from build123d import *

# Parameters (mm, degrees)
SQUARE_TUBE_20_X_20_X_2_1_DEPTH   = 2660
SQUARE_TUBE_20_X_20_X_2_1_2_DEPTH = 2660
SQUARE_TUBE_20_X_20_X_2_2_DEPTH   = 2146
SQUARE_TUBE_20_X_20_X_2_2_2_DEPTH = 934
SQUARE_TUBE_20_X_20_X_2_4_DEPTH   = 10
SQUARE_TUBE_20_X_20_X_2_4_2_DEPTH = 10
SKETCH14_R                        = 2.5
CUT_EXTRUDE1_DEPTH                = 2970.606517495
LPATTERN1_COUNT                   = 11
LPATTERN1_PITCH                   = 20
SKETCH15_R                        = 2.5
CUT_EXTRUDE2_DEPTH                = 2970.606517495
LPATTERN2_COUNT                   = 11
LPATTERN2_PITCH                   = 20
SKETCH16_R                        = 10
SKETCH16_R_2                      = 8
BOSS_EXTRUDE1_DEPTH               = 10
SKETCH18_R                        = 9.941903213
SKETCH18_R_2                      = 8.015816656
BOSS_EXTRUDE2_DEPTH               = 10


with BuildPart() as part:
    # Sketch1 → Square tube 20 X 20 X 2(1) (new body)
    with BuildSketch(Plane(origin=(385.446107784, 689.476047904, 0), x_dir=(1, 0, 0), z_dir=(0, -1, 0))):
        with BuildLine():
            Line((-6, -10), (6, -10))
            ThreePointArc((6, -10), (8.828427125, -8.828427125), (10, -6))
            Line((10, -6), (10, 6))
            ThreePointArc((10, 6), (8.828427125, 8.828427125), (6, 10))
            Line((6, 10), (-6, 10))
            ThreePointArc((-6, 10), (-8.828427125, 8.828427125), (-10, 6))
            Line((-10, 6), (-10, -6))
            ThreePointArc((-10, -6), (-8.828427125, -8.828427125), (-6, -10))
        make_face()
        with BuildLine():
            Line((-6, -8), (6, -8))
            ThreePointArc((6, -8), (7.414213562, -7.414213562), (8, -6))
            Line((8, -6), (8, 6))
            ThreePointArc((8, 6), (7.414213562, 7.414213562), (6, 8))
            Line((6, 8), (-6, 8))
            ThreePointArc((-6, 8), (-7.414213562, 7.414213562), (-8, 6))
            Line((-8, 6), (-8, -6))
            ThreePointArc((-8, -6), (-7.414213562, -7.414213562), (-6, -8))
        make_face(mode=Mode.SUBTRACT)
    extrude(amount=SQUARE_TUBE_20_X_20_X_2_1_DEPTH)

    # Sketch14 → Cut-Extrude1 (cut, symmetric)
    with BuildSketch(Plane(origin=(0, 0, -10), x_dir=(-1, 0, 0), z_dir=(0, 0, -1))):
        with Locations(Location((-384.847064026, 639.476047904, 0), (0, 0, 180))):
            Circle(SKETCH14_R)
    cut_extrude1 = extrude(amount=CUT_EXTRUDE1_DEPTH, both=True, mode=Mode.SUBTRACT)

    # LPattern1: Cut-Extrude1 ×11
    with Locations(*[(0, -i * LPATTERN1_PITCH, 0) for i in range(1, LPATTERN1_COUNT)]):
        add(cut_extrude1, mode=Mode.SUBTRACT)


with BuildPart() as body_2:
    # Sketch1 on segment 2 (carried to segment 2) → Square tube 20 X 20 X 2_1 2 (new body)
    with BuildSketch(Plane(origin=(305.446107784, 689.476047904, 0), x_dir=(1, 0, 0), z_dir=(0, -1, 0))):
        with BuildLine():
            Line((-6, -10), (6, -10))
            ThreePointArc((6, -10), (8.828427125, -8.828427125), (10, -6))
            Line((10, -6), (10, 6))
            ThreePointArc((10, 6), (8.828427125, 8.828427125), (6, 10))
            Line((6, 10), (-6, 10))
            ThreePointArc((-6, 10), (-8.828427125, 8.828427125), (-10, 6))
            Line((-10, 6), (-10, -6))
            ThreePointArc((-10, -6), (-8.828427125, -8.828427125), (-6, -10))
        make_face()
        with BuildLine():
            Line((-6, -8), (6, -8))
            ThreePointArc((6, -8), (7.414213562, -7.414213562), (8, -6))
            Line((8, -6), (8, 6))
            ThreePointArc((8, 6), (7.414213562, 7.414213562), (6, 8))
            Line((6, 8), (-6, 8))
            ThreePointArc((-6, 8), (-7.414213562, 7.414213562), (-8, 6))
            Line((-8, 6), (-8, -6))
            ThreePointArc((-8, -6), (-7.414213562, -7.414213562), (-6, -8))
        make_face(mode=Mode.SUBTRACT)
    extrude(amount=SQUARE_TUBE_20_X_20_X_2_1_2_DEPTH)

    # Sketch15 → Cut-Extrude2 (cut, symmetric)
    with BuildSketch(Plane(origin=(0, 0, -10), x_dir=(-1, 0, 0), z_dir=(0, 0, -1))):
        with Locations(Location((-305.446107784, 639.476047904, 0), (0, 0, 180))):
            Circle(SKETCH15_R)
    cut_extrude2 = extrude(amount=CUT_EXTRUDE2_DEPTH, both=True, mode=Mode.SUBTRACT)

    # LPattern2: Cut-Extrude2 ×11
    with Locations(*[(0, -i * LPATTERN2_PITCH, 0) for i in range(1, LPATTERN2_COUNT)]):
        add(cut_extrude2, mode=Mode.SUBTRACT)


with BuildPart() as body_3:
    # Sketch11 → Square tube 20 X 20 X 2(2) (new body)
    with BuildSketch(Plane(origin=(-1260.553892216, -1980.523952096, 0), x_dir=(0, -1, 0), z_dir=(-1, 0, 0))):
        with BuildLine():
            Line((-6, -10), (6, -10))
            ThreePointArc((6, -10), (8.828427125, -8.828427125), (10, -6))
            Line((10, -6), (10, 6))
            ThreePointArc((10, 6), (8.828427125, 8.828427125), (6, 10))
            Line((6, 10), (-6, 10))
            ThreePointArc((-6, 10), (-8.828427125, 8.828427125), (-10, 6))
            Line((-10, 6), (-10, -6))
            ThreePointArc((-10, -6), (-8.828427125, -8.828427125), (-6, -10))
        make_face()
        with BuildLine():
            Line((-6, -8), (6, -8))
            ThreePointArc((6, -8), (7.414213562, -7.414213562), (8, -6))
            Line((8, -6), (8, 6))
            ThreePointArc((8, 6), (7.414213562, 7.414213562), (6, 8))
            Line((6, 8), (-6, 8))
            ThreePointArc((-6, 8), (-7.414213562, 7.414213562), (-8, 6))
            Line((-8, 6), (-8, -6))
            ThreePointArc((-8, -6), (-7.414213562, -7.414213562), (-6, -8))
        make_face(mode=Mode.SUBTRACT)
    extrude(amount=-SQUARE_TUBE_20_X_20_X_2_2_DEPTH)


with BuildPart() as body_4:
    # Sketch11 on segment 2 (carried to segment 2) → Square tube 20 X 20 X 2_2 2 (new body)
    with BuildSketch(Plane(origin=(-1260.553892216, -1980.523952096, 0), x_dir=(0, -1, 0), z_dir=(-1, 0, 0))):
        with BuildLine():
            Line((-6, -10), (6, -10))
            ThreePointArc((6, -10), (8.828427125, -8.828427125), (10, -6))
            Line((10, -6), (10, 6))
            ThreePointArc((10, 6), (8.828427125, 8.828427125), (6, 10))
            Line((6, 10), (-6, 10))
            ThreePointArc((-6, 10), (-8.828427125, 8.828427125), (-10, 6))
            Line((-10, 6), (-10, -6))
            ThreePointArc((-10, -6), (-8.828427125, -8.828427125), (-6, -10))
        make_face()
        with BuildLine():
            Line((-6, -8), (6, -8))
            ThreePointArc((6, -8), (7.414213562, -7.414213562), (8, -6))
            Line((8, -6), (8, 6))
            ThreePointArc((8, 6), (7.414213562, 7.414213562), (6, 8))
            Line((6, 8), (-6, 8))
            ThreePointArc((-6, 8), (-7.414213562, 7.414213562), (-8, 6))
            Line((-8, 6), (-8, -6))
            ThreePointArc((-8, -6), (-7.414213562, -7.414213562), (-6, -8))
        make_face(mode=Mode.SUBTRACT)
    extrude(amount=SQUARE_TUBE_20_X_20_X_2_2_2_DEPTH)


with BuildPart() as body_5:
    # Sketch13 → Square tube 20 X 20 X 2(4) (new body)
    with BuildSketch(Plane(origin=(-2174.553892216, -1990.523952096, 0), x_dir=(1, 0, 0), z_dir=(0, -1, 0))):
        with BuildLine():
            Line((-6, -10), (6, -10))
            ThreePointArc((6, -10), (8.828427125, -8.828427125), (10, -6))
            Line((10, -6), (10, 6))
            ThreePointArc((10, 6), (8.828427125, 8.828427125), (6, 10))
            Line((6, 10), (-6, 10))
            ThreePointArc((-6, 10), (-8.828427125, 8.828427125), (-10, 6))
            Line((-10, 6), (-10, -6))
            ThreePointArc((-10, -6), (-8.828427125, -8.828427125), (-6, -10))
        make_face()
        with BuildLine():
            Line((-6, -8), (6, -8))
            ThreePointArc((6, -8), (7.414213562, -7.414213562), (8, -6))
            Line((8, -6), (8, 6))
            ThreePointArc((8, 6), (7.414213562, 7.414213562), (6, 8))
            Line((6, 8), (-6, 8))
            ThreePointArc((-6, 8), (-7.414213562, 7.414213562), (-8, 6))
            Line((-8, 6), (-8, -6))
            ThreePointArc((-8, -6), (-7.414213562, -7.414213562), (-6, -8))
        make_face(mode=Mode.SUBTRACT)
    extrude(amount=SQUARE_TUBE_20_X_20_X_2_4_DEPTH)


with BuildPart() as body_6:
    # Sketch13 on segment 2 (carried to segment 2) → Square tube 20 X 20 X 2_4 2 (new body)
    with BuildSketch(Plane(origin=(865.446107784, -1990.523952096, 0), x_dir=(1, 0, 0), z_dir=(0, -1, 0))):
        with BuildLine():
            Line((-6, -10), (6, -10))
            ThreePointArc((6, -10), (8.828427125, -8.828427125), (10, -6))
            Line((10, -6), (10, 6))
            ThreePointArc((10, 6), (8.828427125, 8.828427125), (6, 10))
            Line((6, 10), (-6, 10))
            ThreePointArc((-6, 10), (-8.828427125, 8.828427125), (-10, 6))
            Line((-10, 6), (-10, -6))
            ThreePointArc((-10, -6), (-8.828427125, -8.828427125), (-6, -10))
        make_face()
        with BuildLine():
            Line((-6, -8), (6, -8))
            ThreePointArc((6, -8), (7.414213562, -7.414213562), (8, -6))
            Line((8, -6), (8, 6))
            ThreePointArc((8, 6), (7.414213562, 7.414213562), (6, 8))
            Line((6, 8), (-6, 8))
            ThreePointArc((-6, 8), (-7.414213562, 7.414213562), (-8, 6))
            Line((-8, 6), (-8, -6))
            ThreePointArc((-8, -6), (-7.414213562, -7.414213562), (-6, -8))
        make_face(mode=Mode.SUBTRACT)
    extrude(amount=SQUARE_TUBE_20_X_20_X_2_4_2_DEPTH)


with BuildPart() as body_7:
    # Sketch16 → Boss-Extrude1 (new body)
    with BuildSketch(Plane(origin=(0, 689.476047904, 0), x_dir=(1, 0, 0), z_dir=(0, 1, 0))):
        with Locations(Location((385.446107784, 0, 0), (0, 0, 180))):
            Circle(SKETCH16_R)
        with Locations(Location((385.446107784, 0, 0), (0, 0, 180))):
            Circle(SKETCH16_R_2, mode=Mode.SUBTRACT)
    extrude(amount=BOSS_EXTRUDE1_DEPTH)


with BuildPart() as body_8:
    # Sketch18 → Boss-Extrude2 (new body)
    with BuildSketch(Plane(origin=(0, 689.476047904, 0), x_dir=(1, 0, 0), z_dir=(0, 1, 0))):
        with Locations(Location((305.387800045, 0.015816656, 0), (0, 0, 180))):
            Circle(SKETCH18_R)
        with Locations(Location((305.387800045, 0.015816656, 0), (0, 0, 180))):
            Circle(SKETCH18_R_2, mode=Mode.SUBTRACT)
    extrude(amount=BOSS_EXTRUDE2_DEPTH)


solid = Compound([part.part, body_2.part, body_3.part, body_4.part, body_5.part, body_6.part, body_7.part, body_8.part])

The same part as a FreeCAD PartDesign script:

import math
import FreeCAD as App
import Part
import Sketcher

doc = App.newDocument("Part")
params = doc.addObject("Spreadsheet::Sheet", "Params")
for row, (alias, value) in enumerate([
    ("sketch1_radius", "4 mm"),
    ("sketch1_radius2", "2 mm"),
    ("sketch1_width", "12 mm"),
    ("pad1_length", "2660 mm"),
    ("sketch2_diameter", "5 mm"),
    ("pocket1_length", "5941.213035 mm"),
    ("linearpattern_pitch", "20 mm"),
    ("sketch3_radius", "4 mm"),
    ("sketch3_radius2", "2 mm"),
    ("sketch3_width", "12 mm"),
    ("pad2_length", "2660 mm"),
    ("sketch4_diameter", "5 mm"),
    ("pocket2_length", "5941.213035 mm"),
    ("linearpattern2_pitch", "20 mm"),
    ("sketch5_radius", "4 mm"),
    ("sketch5_radius2", "2 mm"),
    ("sketch5_width", "12 mm"),
    ("pad3_length", "2146 mm"),
    ("sketch6_radius", "4 mm"),
    ("sketch6_radius2", "2 mm"),
    ("sketch6_width", "12 mm"),
    ("pad4_length", "934 mm"),
    ("sketch7_radius", "4 mm"),
    ("sketch7_radius2", "2 mm"),
    ("sketch7_width", "12 mm"),
    ("pad5_length", "10 mm"),
    ("sketch8_radius", "4 mm"),
    ("sketch8_radius2", "2 mm"),
    ("sketch8_width", "12 mm"),
    ("pad6_length", "10 mm"),
    ("sketch9_diameter", "20 mm"),
    ("sketch9_diameter2", "16 mm"),
    ("pad7_length", "10 mm"),
    ("pad8_length", "10 mm"),
], start=1):
    params.set(f"A{row}", alias)
    params.set(f"B{row}", "=" + value)
    params.setAlias(f"B{row}", alias)

body = doc.addObject("PartDesign::Body", "Body")

sketch1 = body.newObject("Sketcher::SketchObject", "Sketch")
sketch1.AttachmentSupport = (doc.getObject("XZ_Plane"), [""])
sketch1.MapMode = "FlatFace"
sketch1.AttachmentOffset = App.Placement(App.Vector(0, 0, -689.476048), App.Rotation())
sketch1.addGeometry([
    Part.LineSegment(App.Vector(379.4, -10, 0), App.Vector(391.4, -10, 0)),
    Part.ArcOfCircle(Part.Circle(App.Vector(391.4, -6, 0), App.Vector(0, 0, 1), 4), math.radians(-90), math.radians(0)),
    Part.LineSegment(App.Vector(395.4, -6, 0), App.Vector(395.4, 6, 0)),
    Part.ArcOfCircle(Part.Circle(App.Vector(391.4, 6, 0), App.Vector(0, 0, 1), 4), math.radians(0), math.radians(90)),
    Part.LineSegment(App.Vector(391.4, 10, 0), App.Vector(379.4, 10, 0)),
    Part.ArcOfCircle(Part.Circle(App.Vector(379.4, 6, 0), App.Vector(0, 0, 1), 4), math.radians(90), math.radians(180)),
    Part.LineSegment(App.Vector(375.4, 6, 0), App.Vector(375.4, -6, 0)),
    Part.ArcOfCircle(Part.Circle(App.Vector(379.4, -6, 0), App.Vector(0, 0, 1), 4), math.radians(180), math.radians(270)),
    Part.LineSegment(App.Vector(391.4, -8, 0), App.Vector(379.4, -8, 0)),
    Part.ArcOfCircle(Part.Circle(App.Vector(379.4, -6, 0), App.Vector(0, 0, 1), 2), math.radians(-180), math.radians(-90)),
    Part.LineSegment(App.Vector(377.4, -6, 0), App.Vector(377.4, 6, 0)),
    Part.ArcOfCircle(Part.Circle(App.Vector(379.4, 6, 0), App.Vector(0, 0, 1), 2), math.radians(90), math.radians(180)),
    Part.LineSegment(App.Vector(379.4, 8, 0), App.Vector(391.4, 8, 0)),
    Part.ArcOfCircle(Part.Circle(App.Vector(391.4, 6, 0), App.Vector(0, 0, 1), 2), math.radians(0), math.radians(90)),
    Part.LineSegment(App.Vector(393.4, 6, 0), App.Vector(393.4, -6, 0)),
    Part.ArcOfCircle(Part.Circle(App.Vector(391.4, -6, 0), App.Vector(0, 0, 1), 2), math.radians(-90), math.radians(0)),
], False)
sketch1.addConstraint([
    Sketcher.Constraint("Tangent", 0, 2, 1, 1),
    Sketcher.Constraint("Tangent", 1, 2, 2, 1),
    Sketcher.Constraint("Tangent", 2, 2, 3, 1),
    Sketcher.Constraint("Tangent", 3, 2, 4, 1),
    Sketcher.Constraint("Tangent", 4, 2, 5, 1),
    Sketcher.Constraint("Tangent", 5, 2, 6, 1),
    Sketcher.Constraint("Tangent", 6, 2, 7, 1),
    Sketcher.Constraint("Tangent", 7, 2, 0, 1),
    Sketcher.Constraint("Tangent", 8, 2, 9, 2),
    Sketcher.Constraint("Tangent", 9, 1, 10, 1),
    Sketcher.Constraint("Tangent", 10, 2, 11, 2),
    Sketcher.Constraint("Tangent", 11, 1, 12, 1),
    Sketcher.Constraint("Tangent", 12, 2, 13, 2),
    Sketcher.Constraint("Tangent", 13, 1, 14, 1),
    Sketcher.Constraint("Tangent", 14, 2, 15, 2),
    Sketcher.Constraint("Tangent", 15, 1, 8, 1),
    Sketcher.Constraint("Horizontal", 0),
    Sketcher.Constraint("Vertical", 2),
    Sketcher.Constraint("Horizontal", 4),
    Sketcher.Constraint("Vertical", 6),
    Sketcher.Constraint("Horizontal", 8),
    Sketcher.Constraint("Vertical", 10),
    Sketcher.Constraint("Horizontal", 12),
    Sketcher.Constraint("Vertical", 14),
    Sketcher.Constraint("Coincident", 9, 3, 7, 3),
    Sketcher.Constraint("Coincident", 11, 3, 5, 3),
    Sketcher.Constraint("Coincident", 13, 3, 3, 3),
    Sketcher.Constraint("Equal", 1, 3),
    Sketcher.Constraint("Equal", 3, 5),
    Sketcher.Constraint("Equal", 5, 7),
    Sketcher.Constraint("Equal", 13, 15),
    Sketcher.Constraint("Equal", 12, 2),
    Sketcher.Constraint("Radius", 1, 4.0),
    Sketcher.Constraint("Radius", 9, 2.0),
    Sketcher.Constraint("DistanceX", 0, 1, 0, 2, 12.0),
    Sketcher.Constraint("DistanceY", 1, 3, -1, 1, 6.0),
    Sketcher.Constraint("DistanceX", -1, 1, 1, 3, 391.446108),
])
sketch1.setExpression("Constraints[32]", "Params.sketch1_radius")
sketch1.setExpression("Constraints[33]", "Params.sketch1_radius2")
sketch1.setExpression("Constraints[34]", "Params.sketch1_width")
pad1 = body.newObject("PartDesign::Pad", "Pad")
pad1.Profile = sketch1
pad1.setExpression("Length", "Params.pad1_length")

sketch2 = body.newObject("Sketcher::SketchObject", "Sketch001")
sketch2.AttachmentSupport = (doc.getObject("XY_Plane"), [""])
sketch2.MapMode = "FlatFace"
sketch2.AttachmentOffset = App.Placement(App.Vector(0, 0, -10), App.Rotation())
sketch2.addGeometry(Part.Circle(App.Vector(384.8, 639.5, 0), App.Vector(0, 0, 1), 2.5), False)
sketch2.addConstraint([
    Sketcher.Constraint("Diameter", 0, 5.0),
    Sketcher.Constraint("DistanceX", -1, 1, 0, 3, 384.847064),
    Sketcher.Constraint("DistanceY", -1, 1, 0, 3, 639.476048),
])
sketch2.setExpression("Constraints[0]", "Params.sketch2_diameter")
pocket1 = body.newObject("PartDesign::Pocket", "Pocket")
pocket1.Profile = sketch2
pocket1.setExpression("Length", "Params.pocket1_length")
pocket1.Midplane = True
doc.recompute()

linearpattern = body.newObject("PartDesign::LinearPattern", "LinearPattern")
linearpattern.Originals = [pocket1]
linearpattern.Direction = (doc.getObject("Y_Axis"), [""])
linearpattern.Mode = "offset"
linearpattern.setExpression("Offset", "Params.linearpattern_pitch")
linearpattern.Occurrences = 11
linearpattern.Reversed = True
body.Tip = linearpattern
body2 = doc.addObject("PartDesign::Body", "Body001")

sketch3 = body2.newObject("Sketcher::SketchObject", "Sketch002")
sketch3.AttachmentSupport = (doc.getObject("XZ_Plane001"), [""])
sketch3.MapMode = "FlatFace"
sketch3.AttachmentOffset = App.Placement(App.Vector(0, 0, -689.476048), App.Rotation())
sketch3.addGeometry([
    Part.LineSegment(App.Vector(299.4, -10, 0), App.Vector(311.4, -10, 0)),
    Part.ArcOfCircle(Part.Circle(App.Vector(311.4, -6, 0), App.Vector(0, 0, 1), 4), math.radians(-90), math.radians(0)),
    Part.LineSegment(App.Vector(315.4, -6, 0), App.Vector(315.4, 6, 0)),
    Part.ArcOfCircle(Part.Circle(App.Vector(311.4, 6, 0), App.Vector(0, 0, 1), 4), math.radians(0), math.radians(90)),
    Part.LineSegment(App.Vector(311.4, 10, 0), App.Vector(299.4, 10, 0)),
    Part.ArcOfCircle(Part.Circle(App.Vector(299.4, 6, 0), App.Vector(0, 0, 1), 4), math.radians(90), math.radians(180)),
    Part.LineSegment(App.Vector(295.4, 6, 0), App.Vector(295.4, -6, 0)),
    Part.ArcOfCircle(Part.Circle(App.Vector(299.4, -6, 0), App.Vector(0, 0, 1), 4), math.radians(180), math.radians(270)),
    Part.LineSegment(App.Vector(311.4, -8, 0), App.Vector(299.4, -8, 0)),
    Part.ArcOfCircle(Part.Circle(App.Vector(299.4, -6, 0), App.Vector(0, 0, 1), 2), math.radians(-180), math.radians(-90)),
    Part.LineSegment(App.Vector(297.4, -6, 0), App.Vector(297.4, 6, 0)),
    Part.ArcOfCircle(Part.Circle(App.Vector(299.4, 6, 0), App.Vector(0, 0, 1), 2), math.radians(90), math.radians(180)),
    Part.LineSegment(App.Vector(299.4, 8, 0), App.Vector(311.4, 8, 0)),
    Part.ArcOfCircle(Part.Circle(App.Vector(311.4, 6, 0), App.Vector(0, 0, 1), 2), math.radians(0), math.radians(90)),
    Part.LineSegment(App.Vector(313.4, 6, 0), App.Vector(313.4, -6, 0)),
    Part.ArcOfCircle(Part.Circle(App.Vector(311.4, -6, 0), App.Vector(0, 0, 1), 2), math.radians(-90), math.radians(0)),
], False)
sketch3.addConstraint([
    Sketcher.Constraint("Tangent", 0, 2, 1, 1),
    Sketcher.Constraint("Tangent", 1, 2, 2, 1),
    Sketcher.Constraint("Tangent", 2, 2, 3, 1),
    Sketcher.Constraint("Tangent", 3, 2, 4, 1),
    Sketcher.Constraint("Tangent", 4, 2, 5, 1),
    Sketcher.Constraint("Tangent", 5, 2, 6, 1),
    Sketcher.Constraint("Tangent", 6, 2, 7, 1),
    Sketcher.Constraint("Tangent", 7, 2, 0, 1),
    Sketcher.Constraint("Tangent", 8, 2, 9, 2),
    Sketcher.Constraint("Tangent", 9, 1, 10, 1),
    Sketcher.Constraint("Tangent", 10, 2, 11, 2),
    Sketcher.Constraint("Tangent", 11, 1, 12, 1),
    Sketcher.Constraint("Tangent", 12, 2, 13, 2),
    Sketcher.Constraint("Tangent", 13, 1, 14, 1),
    Sketcher.Constraint("Tangent", 14, 2, 15, 2),
    Sketcher.Constraint("Tangent", 15, 1, 8, 1),
    Sketcher.Constraint("Horizontal", 0),
    Sketcher.Constraint("Vertical", 2),
    Sketcher.Constraint("Horizontal", 4),
    Sketcher.Constraint("Vertical", 6),
    Sketcher.Constraint("Horizontal", 8),
    Sketcher.Constraint("Vertical", 10),
    Sketcher.Constraint("Horizontal", 12),
    Sketcher.Constraint("Vertical", 14),
    Sketcher.Constraint("Coincident", 9, 3, 7, 3),
    Sketcher.Constraint("Coincident", 11, 3, 5, 3),
    Sketcher.Constraint("Coincident", 13, 3, 3, 3),
    Sketcher.Constraint("Equal", 1, 3),
    Sketcher.Constraint("Equal", 3, 5),
    Sketcher.Constraint("Equal", 5, 7),
    Sketcher.Constraint("Equal", 13, 15),
    Sketcher.Constraint("Equal", 12, 2),
    Sketcher.Constraint("Radius", 1, 4.0),
    Sketcher.Constraint("Radius", 9, 2.0),
    Sketcher.Constraint("DistanceX", 0, 1, 0, 2, 12.0),
    Sketcher.Constraint("DistanceY", 1, 3, -1, 1, 6.0),
    Sketcher.Constraint("DistanceX", -1, 1, 1, 3, 311.446108),
])
sketch3.setExpression("Constraints[32]", "Params.sketch3_radius")
sketch3.setExpression("Constraints[33]", "Params.sketch3_radius2")
sketch3.setExpression("Constraints[34]", "Params.sketch3_width")
pad2 = body2.newObject("PartDesign::Pad", "Pad001")
pad2.Profile = sketch3
pad2.setExpression("Length", "Params.pad2_length")

sketch4 = body2.newObject("Sketcher::SketchObject", "Sketch003")
sketch4.AttachmentSupport = (doc.getObject("XY_Plane001"), [""])
sketch4.MapMode = "FlatFace"
sketch4.AttachmentOffset = App.Placement(App.Vector(0, 0, -10), App.Rotation())
sketch4.addGeometry(Part.Circle(App.Vector(305.4, 639.5, 0), App.Vector(0, 0, 1), 2.5), False)
sketch4.addConstraint([
    Sketcher.Constraint("Diameter", 0, 5.0),
    Sketcher.Constraint("DistanceX", -1, 1, 0, 3, 305.446108),
    Sketcher.Constraint("DistanceY", -1, 1, 0, 3, 639.476048),
])
sketch4.setExpression("Constraints[0]", "Params.sketch4_diameter")
pocket2 = body2.newObject("PartDesign::Pocket", "Pocket001")
pocket2.Profile = sketch4
pocket2.setExpression("Length", "Params.pocket2_length")
pocket2.Midplane = True
doc.recompute()

linearpattern2 = body2.newObject("PartDesign::LinearPattern", "LinearPattern001")
linearpattern2.Originals = [pocket2]
linearpattern2.Direction = (doc.getObject("Y_Axis001"), [""])
linearpattern2.Mode = "offset"
linearpattern2.setExpression("Offset", "Params.linearpattern2_pitch")
linearpattern2.Occurrences = 11
linearpattern2.Reversed = True
body2.Tip = linearpattern2
body3 = doc.addObject("PartDesign::Body", "Body002")

sketch5 = body3.newObject("Sketcher::SketchObject", "Sketch004")
sketch5.AttachmentSupport = (doc.getObject("YZ_Plane002"), [""])
sketch5.MapMode = "FlatFace"
sketch5.AttachmentOffset = App.Placement(App.Vector(0, 0, -1260.553892), App.Rotation())
sketch5.addGeometry([
    Part.LineSegment(App.Vector(-1974.5, -10, 0), App.Vector(-1986.5, -10, 0)),
    Part.ArcOfCircle(Part.Circle(App.Vector(-1986.5, -6, 0), App.Vector(0, 0, 1), 4), math.radians(180), math.radians(270)),
    Part.LineSegment(App.Vector(-1990.5, -6, 0), App.Vector(-1990.5, 6, 0)),
    Part.ArcOfCircle(Part.Circle(App.Vector(-1986.5, 6, 0), App.Vector(0, 0, 1), 4), math.radians(90), math.radians(180)),
    Part.LineSegment(App.Vector(-1986.5, 10, 0), App.Vector(-1974.5, 10, 0)),
    Part.ArcOfCircle(Part.Circle(App.Vector(-1974.5, 6, 0), App.Vector(0, 0, 1), 4), math.radians(0), math.radians(90)),
    Part.LineSegment(App.Vector(-1970.5, 6, 0), App.Vector(-1970.5, -6, 0)),
    Part.ArcOfCircle(Part.Circle(App.Vector(-1974.5, -6, 0), App.Vector(0, 0, 1), 4), math.radians(-90), math.radians(0)),
    Part.LineSegment(App.Vector(-1986.5, -8, 0), App.Vector(-1974.5, -8, 0)),
    Part.ArcOfCircle(Part.Circle(App.Vector(-1974.5, -6, 0), App.Vector(0, 0, 1), 2), math.radians(-90), math.radians(0)),
    Part.LineSegment(App.Vector(-1972.5, -6, 0), App.Vector(-1972.5, 6, 0)),
    Part.ArcOfCircle(Part.Circle(App.Vector(-1974.5, 6, 0), App.Vector(0, 0, 1), 2), math.radians(0), math.radians(90)),
    Part.LineSegment(App.Vector(-1974.5, 8, 0), App.Vector(-1986.5, 8, 0)),
    Part.ArcOfCircle(Part.Circle(App.Vector(-1986.5, 6, 0), App.Vector(0, 0, 1), 2), math.radians(90), math.radians(180)),
    Part.LineSegment(App.Vector(-1988.5, 6, 0), App.Vector(-1988.5, -6, 0)),
    Part.ArcOfCircle(Part.Circle(App.Vector(-1986.5, -6, 0), App.Vector(0, 0, 1), 2), math.radians(-180), math.radians(-90)),
], False)
sketch5.addConstraint([
    Sketcher.Constraint("Tangent", 0, 2, 1, 2),
    Sketcher.Constraint("Tangent", 1, 1, 2, 1),
    Sketcher.Constraint("Tangent", 2, 2, 3, 2),
    Sketcher.Constraint("Tangent", 3, 1, 4, 1),
    Sketcher.Constraint("Tangent", 4, 2, 5, 2),
    Sketcher.Constraint("Tangent", 5, 1, 6, 1),
    Sketcher.Constraint("Tangent", 6, 2, 7, 2),
    Sketcher.Constraint("Tangent", 7, 1, 0, 1),
    Sketcher.Constraint("Tangent", 8, 2, 9, 1),
    Sketcher.Constraint("Tangent", 9, 2, 10, 1),
    Sketcher.Constraint("Tangent", 10, 2, 11, 1),
    Sketcher.Constraint("Tangent", 11, 2, 12, 1),
    Sketcher.Constraint("Tangent", 12, 2, 13, 1),
    Sketcher.Constraint("Tangent", 13, 2, 14, 1),
    Sketcher.Constraint("Tangent", 14, 2, 15, 1),
    Sketcher.Constraint("Tangent", 15, 2, 8, 1),
    Sketcher.Constraint("Horizontal", 0),
    Sketcher.Constraint("Vertical", 2),
    Sketcher.Constraint("Horizontal", 4),
    Sketcher.Constraint("Vertical", 6),
    Sketcher.Constraint("Horizontal", 8),
    Sketcher.Constraint("Vertical", 10),
    Sketcher.Constraint("Horizontal", 12),
    Sketcher.Constraint("Vertical", 14),
    Sketcher.Constraint("Coincident", 9, 3, 7, 3),
    Sketcher.Constraint("Coincident", 11, 3, 5, 3),
    Sketcher.Constraint("Coincident", 13, 3, 3, 3),
    Sketcher.Constraint("Equal", 1, 3),
    Sketcher.Constraint("Equal", 3, 5),
    Sketcher.Constraint("Equal", 5, 7),
    Sketcher.Constraint("Equal", 13, 15),
    Sketcher.Constraint("Equal", 12, 2),
    Sketcher.Constraint("Radius", 1, 4.0),
    Sketcher.Constraint("Radius", 9, 2.0),
    Sketcher.Constraint("DistanceX", 0, 2, 0, 1, 12.0),
    Sketcher.Constraint("DistanceY", 1, 3, -1, 1, 6.0),
    Sketcher.Constraint("DistanceX", 1, 3, -1, 1, 1986.523952),
])
sketch5.setExpression("Constraints[32]", "Params.sketch5_radius")
sketch5.setExpression("Constraints[33]", "Params.sketch5_radius2")
sketch5.setExpression("Constraints[34]", "Params.sketch5_width")
pad3 = body3.newObject("PartDesign::Pad", "Pad002")
pad3.Profile = sketch5
pad3.setExpression("Length", "Params.pad3_length")
body4 = doc.addObject("PartDesign::Body", "Body003")

sketch6 = body4.newObject("Sketcher::SketchObject", "Sketch005")
sketch6.AttachmentSupport = (doc.getObject("YZ_Plane003"), [""])
sketch6.MapMode = "FlatFace"
sketch6.AttachmentOffset = App.Placement(App.Vector(0, 0, -1260.553892), App.Rotation())
sketch6.addGeometry([
    Part.LineSegment(App.Vector(-1974.5, -10, 0), App.Vector(-1986.5, -10, 0)),
    Part.ArcOfCircle(Part.Circle(App.Vector(-1986.5, -6, 0), App.Vector(0, 0, 1), 4), math.radians(180), math.radians(270)),
    Part.LineSegment(App.Vector(-1990.5, -6, 0), App.Vector(-1990.5, 6, 0)),
    Part.ArcOfCircle(Part.Circle(App.Vector(-1986.5, 6, 0), App.Vector(0, 0, 1), 4), math.radians(90), math.radians(180)),
    Part.LineSegment(App.Vector(-1986.5, 10, 0), App.Vector(-1974.5, 10, 0)),
    Part.ArcOfCircle(Part.Circle(App.Vector(-1974.5, 6, 0), App.Vector(0, 0, 1), 4), math.radians(0), math.radians(90)),
    Part.LineSegment(App.Vector(-1970.5, 6, 0), App.Vector(-1970.5, -6, 0)),
    Part.ArcOfCircle(Part.Circle(App.Vector(-1974.5, -6, 0), App.Vector(0, 0, 1), 4), math.radians(-90), math.radians(0)),
    Part.LineSegment(App.Vector(-1986.5, -8, 0), App.Vector(-1974.5, -8, 0)),
    Part.ArcOfCircle(Part.Circle(App.Vector(-1974.5, -6, 0), App.Vector(0, 0, 1), 2), math.radians(-90), math.radians(0)),
    Part.LineSegment(App.Vector(-1972.5, -6, 0), App.Vector(-1972.5, 6, 0)),
    Part.ArcOfCircle(Part.Circle(App.Vector(-1974.5, 6, 0), App.Vector(0, 0, 1), 2), math.radians(0), math.radians(90)),
    Part.LineSegment(App.Vector(-1974.5, 8, 0), App.Vector(-1986.5, 8, 0)),
    Part.ArcOfCircle(Part.Circle(App.Vector(-1986.5, 6, 0), App.Vector(0, 0, 1), 2), math.radians(90), math.radians(180)),
    Part.LineSegment(App.Vector(-1988.5, 6, 0), App.Vector(-1988.5, -6, 0)),
    Part.ArcOfCircle(Part.Circle(App.Vector(-1986.5, -6, 0), App.Vector(0, 0, 1), 2), math.radians(-180), math.radians(-90)),
], False)
sketch6.addConstraint([
    Sketcher.Constraint("Tangent", 0, 2, 1, 2),
    Sketcher.Constraint("Tangent", 1, 1, 2, 1),
    Sketcher.Constraint("Tangent", 2, 2, 3, 2),
    Sketcher.Constraint("Tangent", 3, 1, 4, 1),
    Sketcher.Constraint("Tangent", 4, 2, 5, 2),
    Sketcher.Constraint("Tangent", 5, 1, 6, 1),
    Sketcher.Constraint("Tangent", 6, 2, 7, 2),
    Sketcher.Constraint("Tangent", 7, 1, 0, 1),
    Sketcher.Constraint("Tangent", 8, 2, 9, 1),
    Sketcher.Constraint("Tangent", 9, 2, 10, 1),
    Sketcher.Constraint("Tangent", 10, 2, 11, 1),
    Sketcher.Constraint("Tangent", 11, 2, 12, 1),
    Sketcher.Constraint("Tangent", 12, 2, 13, 1),
    Sketcher.Constraint("Tangent", 13, 2, 14, 1),
    Sketcher.Constraint("Tangent", 14, 2, 15, 1),
    Sketcher.Constraint("Tangent", 15, 2, 8, 1),
    Sketcher.Constraint("Horizontal", 0),
    Sketcher.Constraint("Vertical", 2),
    Sketcher.Constraint("Horizontal", 4),
    Sketcher.Constraint("Vertical", 6),
    Sketcher.Constraint("Horizontal", 8),
    Sketcher.Constraint("Vertical", 10),
    Sketcher.Constraint("Horizontal", 12),
    Sketcher.Constraint("Vertical", 14),
    Sketcher.Constraint("Coincident", 9, 3, 7, 3),
    Sketcher.Constraint("Coincident", 11, 3, 5, 3),
    Sketcher.Constraint("Coincident", 13, 3, 3, 3),
    Sketcher.Constraint("Equal", 1, 3),
    Sketcher.Constraint("Equal", 3, 5),
    Sketcher.Constraint("Equal", 5, 7),
    Sketcher.Constraint("Equal", 13, 15),
    Sketcher.Constraint("Equal", 12, 2),
    Sketcher.Constraint("Radius", 1, 4.0),
    Sketcher.Constraint("Radius", 9, 2.0),
    Sketcher.Constraint("DistanceX", 0, 2, 0, 1, 12.0),
    Sketcher.Constraint("DistanceY", 1, 3, -1, 1, 6.0),
    Sketcher.Constraint("DistanceX", 1, 3, -1, 1, 1986.523952),
])
sketch6.setExpression("Constraints[32]", "Params.sketch6_radius")
sketch6.setExpression("Constraints[33]", "Params.sketch6_radius2")
sketch6.setExpression("Constraints[34]", "Params.sketch6_width")
pad4 = body4.newObject("PartDesign::Pad", "Pad003")
pad4.Profile = sketch6
pad4.setExpression("Length", "Params.pad4_length")
pad4.Reversed = True
body5 = doc.addObject("PartDesign::Body", "Body004")

sketch7 = body5.newObject("Sketcher::SketchObject", "Sketch006")
sketch7.AttachmentSupport = (doc.getObject("XZ_Plane004"), [""])
sketch7.MapMode = "FlatFace"
sketch7.AttachmentOffset = App.Placement(App.Vector(0, 0, 1990.523952), App.Rotation())
sketch7.addGeometry([
    Part.LineSegment(App.Vector(-2180.6, -10, 0), App.Vector(-2168.6, -10, 0)),
    Part.ArcOfCircle(Part.Circle(App.Vector(-2168.6, -6, 0), App.Vector(0, 0, 1), 4), math.radians(-90), math.radians(0)),
    Part.LineSegment(App.Vector(-2164.6, -6, 0), App.Vector(-2164.6, 6, 0)),
    Part.ArcOfCircle(Part.Circle(App.Vector(-2168.6, 6, 0), App.Vector(0, 0, 1), 4), math.radians(0), math.radians(90)),
    Part.LineSegment(App.Vector(-2168.6, 10, 0), App.Vector(-2180.6, 10, 0)),
    Part.ArcOfCircle(Part.Circle(App.Vector(-2180.6, 6, 0), App.Vector(0, 0, 1), 4), math.radians(90), math.radians(180)),
    Part.LineSegment(App.Vector(-2184.6, 6, 0), App.Vector(-2184.6, -6, 0)),
    Part.ArcOfCircle(Part.Circle(App.Vector(-2180.6, -6, 0), App.Vector(0, 0, 1), 4), math.radians(180), math.radians(270)),
    Part.LineSegment(App.Vector(-2168.6, -8, 0), App.Vector(-2180.6, -8, 0)),
    Part.ArcOfCircle(Part.Circle(App.Vector(-2180.6, -6, 0), App.Vector(0, 0, 1), 2), math.radians(-180), math.radians(-90)),
    Part.LineSegment(App.Vector(-2182.6, -6, 0), App.Vector(-2182.6, 6, 0)),
    Part.ArcOfCircle(Part.Circle(App.Vector(-2180.6, 6, 0), App.Vector(0, 0, 1), 2), math.radians(90), math.radians(180)),
    Part.LineSegment(App.Vector(-2180.6, 8, 0), App.Vector(-2168.6, 8, 0)),
    Part.ArcOfCircle(Part.Circle(App.Vector(-2168.6, 6, 0), App.Vector(0, 0, 1), 2), math.radians(0), math.radians(90)),
    Part.LineSegment(App.Vector(-2166.6, 6, 0), App.Vector(-2166.6, -6, 0)),
    Part.ArcOfCircle(Part.Circle(App.Vector(-2168.6, -6, 0), App.Vector(0, 0, 1), 2), math.radians(-90), math.radians(0)),
], False)
sketch7.addConstraint([
    Sketcher.Constraint("Tangent", 0, 2, 1, 1),
    Sketcher.Constraint("Tangent", 1, 2, 2, 1),
    Sketcher.Constraint("Tangent", 2, 2, 3, 1),
    Sketcher.Constraint("Tangent", 3, 2, 4, 1),
    Sketcher.Constraint("Tangent", 4, 2, 5, 1),
    Sketcher.Constraint("Tangent", 5, 2, 6, 1),
    Sketcher.Constraint("Tangent", 6, 2, 7, 1),
    Sketcher.Constraint("Tangent", 7, 2, 0, 1),
    Sketcher.Constraint("Tangent", 8, 2, 9, 2),
    Sketcher.Constraint("Tangent", 9, 1, 10, 1),
    Sketcher.Constraint("Tangent", 10, 2, 11, 2),
    Sketcher.Constraint("Tangent", 11, 1, 12, 1),
    Sketcher.Constraint("Tangent", 12, 2, 13, 2),
    Sketcher.Constraint("Tangent", 13, 1, 14, 1),
    Sketcher.Constraint("Tangent", 14, 2, 15, 2),
    Sketcher.Constraint("Tangent", 15, 1, 8, 1),
    Sketcher.Constraint("Horizontal", 0),
    Sketcher.Constraint("Vertical", 2),
    Sketcher.Constraint("Horizontal", 4),
    Sketcher.Constraint("Vertical", 6),
    Sketcher.Constraint("Horizontal", 8),
    Sketcher.Constraint("Vertical", 10),
    Sketcher.Constraint("Horizontal", 12),
    Sketcher.Constraint("Vertical", 14),
    Sketcher.Constraint("Coincident", 9, 3, 7, 3),
    Sketcher.Constraint("Coincident", 11, 3, 5, 3),
    Sketcher.Constraint("Coincident", 13, 3, 3, 3),
    Sketcher.Constraint("Equal", 1, 3),
    Sketcher.Constraint("Equal", 3, 5),
    Sketcher.Constraint("Equal", 5, 7),
    Sketcher.Constraint("Equal", 13, 15),
    Sketcher.Constraint("Equal", 12, 2),
    Sketcher.Constraint("Radius", 1, 4.0),
    Sketcher.Constraint("Radius", 9, 2.0),
    Sketcher.Constraint("DistanceX", 0, 1, 0, 2, 12.0),
    Sketcher.Constraint("DistanceY", 1, 3, -1, 1, 6.0),
    Sketcher.Constraint("DistanceX", 1, 3, -1, 1, 2168.553892),
])
sketch7.setExpression("Constraints[32]", "Params.sketch7_radius")
sketch7.setExpression("Constraints[33]", "Params.sketch7_radius2")
sketch7.setExpression("Constraints[34]", "Params.sketch7_width")
pad5 = body5.newObject("PartDesign::Pad", "Pad004")
pad5.Profile = sketch7
pad5.setExpression("Length", "Params.pad5_length")
body6 = doc.addObject("PartDesign::Body", "Body005")

sketch8 = body6.newObject("Sketcher::SketchObject", "Sketch007")
sketch8.AttachmentSupport = (doc.getObject("XZ_Plane005"), [""])
sketch8.MapMode = "FlatFace"
sketch8.AttachmentOffset = App.Placement(App.Vector(0, 0, 1990.523952), App.Rotation())
sketch8.addGeometry([
    Part.LineSegment(App.Vector(859.4, -10, 0), App.Vector(871.4, -10, 0)),
    Part.ArcOfCircle(Part.Circle(App.Vector(871.4, -6, 0), App.Vector(0, 0, 1), 4), math.radians(-90), math.radians(0)),
    Part.LineSegment(App.Vector(875.4, -6, 0), App.Vector(875.4, 6, 0)),
    Part.ArcOfCircle(Part.Circle(App.Vector(871.4, 6, 0), App.Vector(0, 0, 1), 4), math.radians(0), math.radians(90)),
    Part.LineSegment(App.Vector(871.4, 10, 0), App.Vector(859.4, 10, 0)),
    Part.ArcOfCircle(Part.Circle(App.Vector(859.4, 6, 0), App.Vector(0, 0, 1), 4), math.radians(90), math.radians(180)),
    Part.LineSegment(App.Vector(855.4, 6, 0), App.Vector(855.4, -6, 0)),
    Part.ArcOfCircle(Part.Circle(App.Vector(859.4, -6, 0), App.Vector(0, 0, 1), 4), math.radians(180), math.radians(270)),
    Part.LineSegment(App.Vector(871.4, -8, 0), App.Vector(859.4, -8, 0)),
    Part.ArcOfCircle(Part.Circle(App.Vector(859.4, -6, 0), App.Vector(0, 0, 1), 2), math.radians(-180), math.radians(-90)),
    Part.LineSegment(App.Vector(857.4, -6, 0), App.Vector(857.4, 6, 0)),
    Part.ArcOfCircle(Part.Circle(App.Vector(859.4, 6, 0), App.Vector(0, 0, 1), 2), math.radians(90), math.radians(180)),
    Part.LineSegment(App.Vector(859.4, 8, 0), App.Vector(871.4, 8, 0)),
    Part.ArcOfCircle(Part.Circle(App.Vector(871.4, 6, 0), App.Vector(0, 0, 1), 2), math.radians(0), math.radians(90)),
    Part.LineSegment(App.Vector(873.4, 6, 0), App.Vector(873.4, -6, 0)),
    Part.ArcOfCircle(Part.Circle(App.Vector(871.4, -6, 0), App.Vector(0, 0, 1), 2), math.radians(-90), math.radians(0)),
], False)
sketch8.addConstraint([
    Sketcher.Constraint("Tangent", 0, 2, 1, 1),
    Sketcher.Constraint("Tangent", 1, 2, 2, 1),
    Sketcher.Constraint("Tangent", 2, 2, 3, 1),
    Sketcher.Constraint("Tangent", 3, 2, 4, 1),
    Sketcher.Constraint("Tangent", 4, 2, 5, 1),
    Sketcher.Constraint("Tangent", 5, 2, 6, 1),
    Sketcher.Constraint("Tangent", 6, 2, 7, 1),
    Sketcher.Constraint("Tangent", 7, 2, 0, 1),
    Sketcher.Constraint("Tangent", 8, 2, 9, 2),
    Sketcher.Constraint("Tangent", 9, 1, 10, 1),
    Sketcher.Constraint("Tangent", 10, 2, 11, 2),
    Sketcher.Constraint("Tangent", 11, 1, 12, 1),
    Sketcher.Constraint("Tangent", 12, 2, 13, 2),
    Sketcher.Constraint("Tangent", 13, 1, 14, 1),
    Sketcher.Constraint("Tangent", 14, 2, 15, 2),
    Sketcher.Constraint("Tangent", 15, 1, 8, 1),
    Sketcher.Constraint("Horizontal", 0),
    Sketcher.Constraint("Vertical", 2),
    Sketcher.Constraint("Horizontal", 4),
    Sketcher.Constraint("Vertical", 6),
    Sketcher.Constraint("Horizontal", 8),
    Sketcher.Constraint("Vertical", 10),
    Sketcher.Constraint("Horizontal", 12),
    Sketcher.Constraint("Vertical", 14),
    Sketcher.Constraint("Coincident", 9, 3, 7, 3),
    Sketcher.Constraint("Coincident", 11, 3, 5, 3),
    Sketcher.Constraint("Coincident", 13, 3, 3, 3),
    Sketcher.Constraint("Equal", 1, 3),
    Sketcher.Constraint("Equal", 3, 5),
    Sketcher.Constraint("Equal", 5, 7),
    Sketcher.Constraint("Equal", 13, 15),
    Sketcher.Constraint("Equal", 12, 2),
    Sketcher.Constraint("Radius", 1, 4.0),
    Sketcher.Constraint("Radius", 9, 2.0),
    Sketcher.Constraint("DistanceX", 0, 1, 0, 2, 12.0),
    Sketcher.Constraint("DistanceY", 1, 3, -1, 1, 6.0),
    Sketcher.Constraint("DistanceX", -1, 1, 1, 3, 871.446108),
])
sketch8.setExpression("Constraints[32]", "Params.sketch8_radius")
sketch8.setExpression("Constraints[33]", "Params.sketch8_radius2")
sketch8.setExpression("Constraints[34]", "Params.sketch8_width")
pad6 = body6.newObject("PartDesign::Pad", "Pad005")
pad6.Profile = sketch8
pad6.setExpression("Length", "Params.pad6_length")
body7 = doc.addObject("PartDesign::Body", "Body006")

sketch9 = body7.newObject("Sketcher::SketchObject", "Sketch008")
sketch9.AttachmentSupport = (doc.getObject("XZ_Plane006"), [""])
sketch9.MapMode = "FlatFace"
sketch9.AttachmentOffset = App.Placement(App.Vector(0, 0, -689.476048), App.Rotation())
sketch9.addGeometry([
    Part.Circle(App.Vector(385, 0, 0), App.Vector(0, 0, 1), 10),
    Part.Circle(App.Vector(385, 0, 0), App.Vector(0, 0, 1), 8),
], False)
sketch9.addConstraint([
    Sketcher.Constraint("Coincident", 1, 3, 0, 3),
    Sketcher.Constraint("PointOnObject", 0, 3, -1),
    Sketcher.Constraint("Diameter", 0, 20.0),
    Sketcher.Constraint("Diameter", 1, 16.0),
    Sketcher.Constraint("DistanceX", -1, 1, 0, 3, 385.446108),
])
sketch9.setExpression("Constraints[2]", "Params.sketch9_diameter")
sketch9.setExpression("Constraints[3]", "Params.sketch9_diameter2")
pad7 = body7.newObject("PartDesign::Pad", "Pad006")
pad7.Profile = sketch9
pad7.setExpression("Length", "Params.pad7_length")
pad7.Reversed = True
body8 = doc.addObject("PartDesign::Body", "Body007")

sketch10 = body8.newObject("Sketcher::SketchObject", "Sketch009")
sketch10.AttachmentSupport = (doc.getObject("XZ_Plane007"), [""])
sketch10.MapMode = "FlatFace"
sketch10.AttachmentOffset = App.Placement(App.Vector(0, 0, -689.476048), App.Rotation())
sketch10.addGeometry([
    Part.Circle(App.Vector(305, 0, 0), App.Vector(0, 0, 1), 10),
    Part.Circle(App.Vector(305, 0, 0), App.Vector(0, 0, 1), 8),
], False)
sketch10.addConstraint([
    Sketcher.Constraint("Coincident", 1, 3, 0, 3),
    Sketcher.Constraint("Diameter", 0, 19.883806),
    Sketcher.Constraint("Diameter", 1, 16.031633),
    Sketcher.Constraint("DistanceX", -1, 1, 0, 3, 305.3878),
    Sketcher.Constraint("DistanceY", 0, 3, -1, 1, 0.015817),
])
pad8 = body8.newObject("PartDesign::Pad", "Pad007")
pad8.Profile = sketch10
pad8.setExpression("Length", "Params.pad8_length")
pad8.Reversed = True

doc.recompute()
